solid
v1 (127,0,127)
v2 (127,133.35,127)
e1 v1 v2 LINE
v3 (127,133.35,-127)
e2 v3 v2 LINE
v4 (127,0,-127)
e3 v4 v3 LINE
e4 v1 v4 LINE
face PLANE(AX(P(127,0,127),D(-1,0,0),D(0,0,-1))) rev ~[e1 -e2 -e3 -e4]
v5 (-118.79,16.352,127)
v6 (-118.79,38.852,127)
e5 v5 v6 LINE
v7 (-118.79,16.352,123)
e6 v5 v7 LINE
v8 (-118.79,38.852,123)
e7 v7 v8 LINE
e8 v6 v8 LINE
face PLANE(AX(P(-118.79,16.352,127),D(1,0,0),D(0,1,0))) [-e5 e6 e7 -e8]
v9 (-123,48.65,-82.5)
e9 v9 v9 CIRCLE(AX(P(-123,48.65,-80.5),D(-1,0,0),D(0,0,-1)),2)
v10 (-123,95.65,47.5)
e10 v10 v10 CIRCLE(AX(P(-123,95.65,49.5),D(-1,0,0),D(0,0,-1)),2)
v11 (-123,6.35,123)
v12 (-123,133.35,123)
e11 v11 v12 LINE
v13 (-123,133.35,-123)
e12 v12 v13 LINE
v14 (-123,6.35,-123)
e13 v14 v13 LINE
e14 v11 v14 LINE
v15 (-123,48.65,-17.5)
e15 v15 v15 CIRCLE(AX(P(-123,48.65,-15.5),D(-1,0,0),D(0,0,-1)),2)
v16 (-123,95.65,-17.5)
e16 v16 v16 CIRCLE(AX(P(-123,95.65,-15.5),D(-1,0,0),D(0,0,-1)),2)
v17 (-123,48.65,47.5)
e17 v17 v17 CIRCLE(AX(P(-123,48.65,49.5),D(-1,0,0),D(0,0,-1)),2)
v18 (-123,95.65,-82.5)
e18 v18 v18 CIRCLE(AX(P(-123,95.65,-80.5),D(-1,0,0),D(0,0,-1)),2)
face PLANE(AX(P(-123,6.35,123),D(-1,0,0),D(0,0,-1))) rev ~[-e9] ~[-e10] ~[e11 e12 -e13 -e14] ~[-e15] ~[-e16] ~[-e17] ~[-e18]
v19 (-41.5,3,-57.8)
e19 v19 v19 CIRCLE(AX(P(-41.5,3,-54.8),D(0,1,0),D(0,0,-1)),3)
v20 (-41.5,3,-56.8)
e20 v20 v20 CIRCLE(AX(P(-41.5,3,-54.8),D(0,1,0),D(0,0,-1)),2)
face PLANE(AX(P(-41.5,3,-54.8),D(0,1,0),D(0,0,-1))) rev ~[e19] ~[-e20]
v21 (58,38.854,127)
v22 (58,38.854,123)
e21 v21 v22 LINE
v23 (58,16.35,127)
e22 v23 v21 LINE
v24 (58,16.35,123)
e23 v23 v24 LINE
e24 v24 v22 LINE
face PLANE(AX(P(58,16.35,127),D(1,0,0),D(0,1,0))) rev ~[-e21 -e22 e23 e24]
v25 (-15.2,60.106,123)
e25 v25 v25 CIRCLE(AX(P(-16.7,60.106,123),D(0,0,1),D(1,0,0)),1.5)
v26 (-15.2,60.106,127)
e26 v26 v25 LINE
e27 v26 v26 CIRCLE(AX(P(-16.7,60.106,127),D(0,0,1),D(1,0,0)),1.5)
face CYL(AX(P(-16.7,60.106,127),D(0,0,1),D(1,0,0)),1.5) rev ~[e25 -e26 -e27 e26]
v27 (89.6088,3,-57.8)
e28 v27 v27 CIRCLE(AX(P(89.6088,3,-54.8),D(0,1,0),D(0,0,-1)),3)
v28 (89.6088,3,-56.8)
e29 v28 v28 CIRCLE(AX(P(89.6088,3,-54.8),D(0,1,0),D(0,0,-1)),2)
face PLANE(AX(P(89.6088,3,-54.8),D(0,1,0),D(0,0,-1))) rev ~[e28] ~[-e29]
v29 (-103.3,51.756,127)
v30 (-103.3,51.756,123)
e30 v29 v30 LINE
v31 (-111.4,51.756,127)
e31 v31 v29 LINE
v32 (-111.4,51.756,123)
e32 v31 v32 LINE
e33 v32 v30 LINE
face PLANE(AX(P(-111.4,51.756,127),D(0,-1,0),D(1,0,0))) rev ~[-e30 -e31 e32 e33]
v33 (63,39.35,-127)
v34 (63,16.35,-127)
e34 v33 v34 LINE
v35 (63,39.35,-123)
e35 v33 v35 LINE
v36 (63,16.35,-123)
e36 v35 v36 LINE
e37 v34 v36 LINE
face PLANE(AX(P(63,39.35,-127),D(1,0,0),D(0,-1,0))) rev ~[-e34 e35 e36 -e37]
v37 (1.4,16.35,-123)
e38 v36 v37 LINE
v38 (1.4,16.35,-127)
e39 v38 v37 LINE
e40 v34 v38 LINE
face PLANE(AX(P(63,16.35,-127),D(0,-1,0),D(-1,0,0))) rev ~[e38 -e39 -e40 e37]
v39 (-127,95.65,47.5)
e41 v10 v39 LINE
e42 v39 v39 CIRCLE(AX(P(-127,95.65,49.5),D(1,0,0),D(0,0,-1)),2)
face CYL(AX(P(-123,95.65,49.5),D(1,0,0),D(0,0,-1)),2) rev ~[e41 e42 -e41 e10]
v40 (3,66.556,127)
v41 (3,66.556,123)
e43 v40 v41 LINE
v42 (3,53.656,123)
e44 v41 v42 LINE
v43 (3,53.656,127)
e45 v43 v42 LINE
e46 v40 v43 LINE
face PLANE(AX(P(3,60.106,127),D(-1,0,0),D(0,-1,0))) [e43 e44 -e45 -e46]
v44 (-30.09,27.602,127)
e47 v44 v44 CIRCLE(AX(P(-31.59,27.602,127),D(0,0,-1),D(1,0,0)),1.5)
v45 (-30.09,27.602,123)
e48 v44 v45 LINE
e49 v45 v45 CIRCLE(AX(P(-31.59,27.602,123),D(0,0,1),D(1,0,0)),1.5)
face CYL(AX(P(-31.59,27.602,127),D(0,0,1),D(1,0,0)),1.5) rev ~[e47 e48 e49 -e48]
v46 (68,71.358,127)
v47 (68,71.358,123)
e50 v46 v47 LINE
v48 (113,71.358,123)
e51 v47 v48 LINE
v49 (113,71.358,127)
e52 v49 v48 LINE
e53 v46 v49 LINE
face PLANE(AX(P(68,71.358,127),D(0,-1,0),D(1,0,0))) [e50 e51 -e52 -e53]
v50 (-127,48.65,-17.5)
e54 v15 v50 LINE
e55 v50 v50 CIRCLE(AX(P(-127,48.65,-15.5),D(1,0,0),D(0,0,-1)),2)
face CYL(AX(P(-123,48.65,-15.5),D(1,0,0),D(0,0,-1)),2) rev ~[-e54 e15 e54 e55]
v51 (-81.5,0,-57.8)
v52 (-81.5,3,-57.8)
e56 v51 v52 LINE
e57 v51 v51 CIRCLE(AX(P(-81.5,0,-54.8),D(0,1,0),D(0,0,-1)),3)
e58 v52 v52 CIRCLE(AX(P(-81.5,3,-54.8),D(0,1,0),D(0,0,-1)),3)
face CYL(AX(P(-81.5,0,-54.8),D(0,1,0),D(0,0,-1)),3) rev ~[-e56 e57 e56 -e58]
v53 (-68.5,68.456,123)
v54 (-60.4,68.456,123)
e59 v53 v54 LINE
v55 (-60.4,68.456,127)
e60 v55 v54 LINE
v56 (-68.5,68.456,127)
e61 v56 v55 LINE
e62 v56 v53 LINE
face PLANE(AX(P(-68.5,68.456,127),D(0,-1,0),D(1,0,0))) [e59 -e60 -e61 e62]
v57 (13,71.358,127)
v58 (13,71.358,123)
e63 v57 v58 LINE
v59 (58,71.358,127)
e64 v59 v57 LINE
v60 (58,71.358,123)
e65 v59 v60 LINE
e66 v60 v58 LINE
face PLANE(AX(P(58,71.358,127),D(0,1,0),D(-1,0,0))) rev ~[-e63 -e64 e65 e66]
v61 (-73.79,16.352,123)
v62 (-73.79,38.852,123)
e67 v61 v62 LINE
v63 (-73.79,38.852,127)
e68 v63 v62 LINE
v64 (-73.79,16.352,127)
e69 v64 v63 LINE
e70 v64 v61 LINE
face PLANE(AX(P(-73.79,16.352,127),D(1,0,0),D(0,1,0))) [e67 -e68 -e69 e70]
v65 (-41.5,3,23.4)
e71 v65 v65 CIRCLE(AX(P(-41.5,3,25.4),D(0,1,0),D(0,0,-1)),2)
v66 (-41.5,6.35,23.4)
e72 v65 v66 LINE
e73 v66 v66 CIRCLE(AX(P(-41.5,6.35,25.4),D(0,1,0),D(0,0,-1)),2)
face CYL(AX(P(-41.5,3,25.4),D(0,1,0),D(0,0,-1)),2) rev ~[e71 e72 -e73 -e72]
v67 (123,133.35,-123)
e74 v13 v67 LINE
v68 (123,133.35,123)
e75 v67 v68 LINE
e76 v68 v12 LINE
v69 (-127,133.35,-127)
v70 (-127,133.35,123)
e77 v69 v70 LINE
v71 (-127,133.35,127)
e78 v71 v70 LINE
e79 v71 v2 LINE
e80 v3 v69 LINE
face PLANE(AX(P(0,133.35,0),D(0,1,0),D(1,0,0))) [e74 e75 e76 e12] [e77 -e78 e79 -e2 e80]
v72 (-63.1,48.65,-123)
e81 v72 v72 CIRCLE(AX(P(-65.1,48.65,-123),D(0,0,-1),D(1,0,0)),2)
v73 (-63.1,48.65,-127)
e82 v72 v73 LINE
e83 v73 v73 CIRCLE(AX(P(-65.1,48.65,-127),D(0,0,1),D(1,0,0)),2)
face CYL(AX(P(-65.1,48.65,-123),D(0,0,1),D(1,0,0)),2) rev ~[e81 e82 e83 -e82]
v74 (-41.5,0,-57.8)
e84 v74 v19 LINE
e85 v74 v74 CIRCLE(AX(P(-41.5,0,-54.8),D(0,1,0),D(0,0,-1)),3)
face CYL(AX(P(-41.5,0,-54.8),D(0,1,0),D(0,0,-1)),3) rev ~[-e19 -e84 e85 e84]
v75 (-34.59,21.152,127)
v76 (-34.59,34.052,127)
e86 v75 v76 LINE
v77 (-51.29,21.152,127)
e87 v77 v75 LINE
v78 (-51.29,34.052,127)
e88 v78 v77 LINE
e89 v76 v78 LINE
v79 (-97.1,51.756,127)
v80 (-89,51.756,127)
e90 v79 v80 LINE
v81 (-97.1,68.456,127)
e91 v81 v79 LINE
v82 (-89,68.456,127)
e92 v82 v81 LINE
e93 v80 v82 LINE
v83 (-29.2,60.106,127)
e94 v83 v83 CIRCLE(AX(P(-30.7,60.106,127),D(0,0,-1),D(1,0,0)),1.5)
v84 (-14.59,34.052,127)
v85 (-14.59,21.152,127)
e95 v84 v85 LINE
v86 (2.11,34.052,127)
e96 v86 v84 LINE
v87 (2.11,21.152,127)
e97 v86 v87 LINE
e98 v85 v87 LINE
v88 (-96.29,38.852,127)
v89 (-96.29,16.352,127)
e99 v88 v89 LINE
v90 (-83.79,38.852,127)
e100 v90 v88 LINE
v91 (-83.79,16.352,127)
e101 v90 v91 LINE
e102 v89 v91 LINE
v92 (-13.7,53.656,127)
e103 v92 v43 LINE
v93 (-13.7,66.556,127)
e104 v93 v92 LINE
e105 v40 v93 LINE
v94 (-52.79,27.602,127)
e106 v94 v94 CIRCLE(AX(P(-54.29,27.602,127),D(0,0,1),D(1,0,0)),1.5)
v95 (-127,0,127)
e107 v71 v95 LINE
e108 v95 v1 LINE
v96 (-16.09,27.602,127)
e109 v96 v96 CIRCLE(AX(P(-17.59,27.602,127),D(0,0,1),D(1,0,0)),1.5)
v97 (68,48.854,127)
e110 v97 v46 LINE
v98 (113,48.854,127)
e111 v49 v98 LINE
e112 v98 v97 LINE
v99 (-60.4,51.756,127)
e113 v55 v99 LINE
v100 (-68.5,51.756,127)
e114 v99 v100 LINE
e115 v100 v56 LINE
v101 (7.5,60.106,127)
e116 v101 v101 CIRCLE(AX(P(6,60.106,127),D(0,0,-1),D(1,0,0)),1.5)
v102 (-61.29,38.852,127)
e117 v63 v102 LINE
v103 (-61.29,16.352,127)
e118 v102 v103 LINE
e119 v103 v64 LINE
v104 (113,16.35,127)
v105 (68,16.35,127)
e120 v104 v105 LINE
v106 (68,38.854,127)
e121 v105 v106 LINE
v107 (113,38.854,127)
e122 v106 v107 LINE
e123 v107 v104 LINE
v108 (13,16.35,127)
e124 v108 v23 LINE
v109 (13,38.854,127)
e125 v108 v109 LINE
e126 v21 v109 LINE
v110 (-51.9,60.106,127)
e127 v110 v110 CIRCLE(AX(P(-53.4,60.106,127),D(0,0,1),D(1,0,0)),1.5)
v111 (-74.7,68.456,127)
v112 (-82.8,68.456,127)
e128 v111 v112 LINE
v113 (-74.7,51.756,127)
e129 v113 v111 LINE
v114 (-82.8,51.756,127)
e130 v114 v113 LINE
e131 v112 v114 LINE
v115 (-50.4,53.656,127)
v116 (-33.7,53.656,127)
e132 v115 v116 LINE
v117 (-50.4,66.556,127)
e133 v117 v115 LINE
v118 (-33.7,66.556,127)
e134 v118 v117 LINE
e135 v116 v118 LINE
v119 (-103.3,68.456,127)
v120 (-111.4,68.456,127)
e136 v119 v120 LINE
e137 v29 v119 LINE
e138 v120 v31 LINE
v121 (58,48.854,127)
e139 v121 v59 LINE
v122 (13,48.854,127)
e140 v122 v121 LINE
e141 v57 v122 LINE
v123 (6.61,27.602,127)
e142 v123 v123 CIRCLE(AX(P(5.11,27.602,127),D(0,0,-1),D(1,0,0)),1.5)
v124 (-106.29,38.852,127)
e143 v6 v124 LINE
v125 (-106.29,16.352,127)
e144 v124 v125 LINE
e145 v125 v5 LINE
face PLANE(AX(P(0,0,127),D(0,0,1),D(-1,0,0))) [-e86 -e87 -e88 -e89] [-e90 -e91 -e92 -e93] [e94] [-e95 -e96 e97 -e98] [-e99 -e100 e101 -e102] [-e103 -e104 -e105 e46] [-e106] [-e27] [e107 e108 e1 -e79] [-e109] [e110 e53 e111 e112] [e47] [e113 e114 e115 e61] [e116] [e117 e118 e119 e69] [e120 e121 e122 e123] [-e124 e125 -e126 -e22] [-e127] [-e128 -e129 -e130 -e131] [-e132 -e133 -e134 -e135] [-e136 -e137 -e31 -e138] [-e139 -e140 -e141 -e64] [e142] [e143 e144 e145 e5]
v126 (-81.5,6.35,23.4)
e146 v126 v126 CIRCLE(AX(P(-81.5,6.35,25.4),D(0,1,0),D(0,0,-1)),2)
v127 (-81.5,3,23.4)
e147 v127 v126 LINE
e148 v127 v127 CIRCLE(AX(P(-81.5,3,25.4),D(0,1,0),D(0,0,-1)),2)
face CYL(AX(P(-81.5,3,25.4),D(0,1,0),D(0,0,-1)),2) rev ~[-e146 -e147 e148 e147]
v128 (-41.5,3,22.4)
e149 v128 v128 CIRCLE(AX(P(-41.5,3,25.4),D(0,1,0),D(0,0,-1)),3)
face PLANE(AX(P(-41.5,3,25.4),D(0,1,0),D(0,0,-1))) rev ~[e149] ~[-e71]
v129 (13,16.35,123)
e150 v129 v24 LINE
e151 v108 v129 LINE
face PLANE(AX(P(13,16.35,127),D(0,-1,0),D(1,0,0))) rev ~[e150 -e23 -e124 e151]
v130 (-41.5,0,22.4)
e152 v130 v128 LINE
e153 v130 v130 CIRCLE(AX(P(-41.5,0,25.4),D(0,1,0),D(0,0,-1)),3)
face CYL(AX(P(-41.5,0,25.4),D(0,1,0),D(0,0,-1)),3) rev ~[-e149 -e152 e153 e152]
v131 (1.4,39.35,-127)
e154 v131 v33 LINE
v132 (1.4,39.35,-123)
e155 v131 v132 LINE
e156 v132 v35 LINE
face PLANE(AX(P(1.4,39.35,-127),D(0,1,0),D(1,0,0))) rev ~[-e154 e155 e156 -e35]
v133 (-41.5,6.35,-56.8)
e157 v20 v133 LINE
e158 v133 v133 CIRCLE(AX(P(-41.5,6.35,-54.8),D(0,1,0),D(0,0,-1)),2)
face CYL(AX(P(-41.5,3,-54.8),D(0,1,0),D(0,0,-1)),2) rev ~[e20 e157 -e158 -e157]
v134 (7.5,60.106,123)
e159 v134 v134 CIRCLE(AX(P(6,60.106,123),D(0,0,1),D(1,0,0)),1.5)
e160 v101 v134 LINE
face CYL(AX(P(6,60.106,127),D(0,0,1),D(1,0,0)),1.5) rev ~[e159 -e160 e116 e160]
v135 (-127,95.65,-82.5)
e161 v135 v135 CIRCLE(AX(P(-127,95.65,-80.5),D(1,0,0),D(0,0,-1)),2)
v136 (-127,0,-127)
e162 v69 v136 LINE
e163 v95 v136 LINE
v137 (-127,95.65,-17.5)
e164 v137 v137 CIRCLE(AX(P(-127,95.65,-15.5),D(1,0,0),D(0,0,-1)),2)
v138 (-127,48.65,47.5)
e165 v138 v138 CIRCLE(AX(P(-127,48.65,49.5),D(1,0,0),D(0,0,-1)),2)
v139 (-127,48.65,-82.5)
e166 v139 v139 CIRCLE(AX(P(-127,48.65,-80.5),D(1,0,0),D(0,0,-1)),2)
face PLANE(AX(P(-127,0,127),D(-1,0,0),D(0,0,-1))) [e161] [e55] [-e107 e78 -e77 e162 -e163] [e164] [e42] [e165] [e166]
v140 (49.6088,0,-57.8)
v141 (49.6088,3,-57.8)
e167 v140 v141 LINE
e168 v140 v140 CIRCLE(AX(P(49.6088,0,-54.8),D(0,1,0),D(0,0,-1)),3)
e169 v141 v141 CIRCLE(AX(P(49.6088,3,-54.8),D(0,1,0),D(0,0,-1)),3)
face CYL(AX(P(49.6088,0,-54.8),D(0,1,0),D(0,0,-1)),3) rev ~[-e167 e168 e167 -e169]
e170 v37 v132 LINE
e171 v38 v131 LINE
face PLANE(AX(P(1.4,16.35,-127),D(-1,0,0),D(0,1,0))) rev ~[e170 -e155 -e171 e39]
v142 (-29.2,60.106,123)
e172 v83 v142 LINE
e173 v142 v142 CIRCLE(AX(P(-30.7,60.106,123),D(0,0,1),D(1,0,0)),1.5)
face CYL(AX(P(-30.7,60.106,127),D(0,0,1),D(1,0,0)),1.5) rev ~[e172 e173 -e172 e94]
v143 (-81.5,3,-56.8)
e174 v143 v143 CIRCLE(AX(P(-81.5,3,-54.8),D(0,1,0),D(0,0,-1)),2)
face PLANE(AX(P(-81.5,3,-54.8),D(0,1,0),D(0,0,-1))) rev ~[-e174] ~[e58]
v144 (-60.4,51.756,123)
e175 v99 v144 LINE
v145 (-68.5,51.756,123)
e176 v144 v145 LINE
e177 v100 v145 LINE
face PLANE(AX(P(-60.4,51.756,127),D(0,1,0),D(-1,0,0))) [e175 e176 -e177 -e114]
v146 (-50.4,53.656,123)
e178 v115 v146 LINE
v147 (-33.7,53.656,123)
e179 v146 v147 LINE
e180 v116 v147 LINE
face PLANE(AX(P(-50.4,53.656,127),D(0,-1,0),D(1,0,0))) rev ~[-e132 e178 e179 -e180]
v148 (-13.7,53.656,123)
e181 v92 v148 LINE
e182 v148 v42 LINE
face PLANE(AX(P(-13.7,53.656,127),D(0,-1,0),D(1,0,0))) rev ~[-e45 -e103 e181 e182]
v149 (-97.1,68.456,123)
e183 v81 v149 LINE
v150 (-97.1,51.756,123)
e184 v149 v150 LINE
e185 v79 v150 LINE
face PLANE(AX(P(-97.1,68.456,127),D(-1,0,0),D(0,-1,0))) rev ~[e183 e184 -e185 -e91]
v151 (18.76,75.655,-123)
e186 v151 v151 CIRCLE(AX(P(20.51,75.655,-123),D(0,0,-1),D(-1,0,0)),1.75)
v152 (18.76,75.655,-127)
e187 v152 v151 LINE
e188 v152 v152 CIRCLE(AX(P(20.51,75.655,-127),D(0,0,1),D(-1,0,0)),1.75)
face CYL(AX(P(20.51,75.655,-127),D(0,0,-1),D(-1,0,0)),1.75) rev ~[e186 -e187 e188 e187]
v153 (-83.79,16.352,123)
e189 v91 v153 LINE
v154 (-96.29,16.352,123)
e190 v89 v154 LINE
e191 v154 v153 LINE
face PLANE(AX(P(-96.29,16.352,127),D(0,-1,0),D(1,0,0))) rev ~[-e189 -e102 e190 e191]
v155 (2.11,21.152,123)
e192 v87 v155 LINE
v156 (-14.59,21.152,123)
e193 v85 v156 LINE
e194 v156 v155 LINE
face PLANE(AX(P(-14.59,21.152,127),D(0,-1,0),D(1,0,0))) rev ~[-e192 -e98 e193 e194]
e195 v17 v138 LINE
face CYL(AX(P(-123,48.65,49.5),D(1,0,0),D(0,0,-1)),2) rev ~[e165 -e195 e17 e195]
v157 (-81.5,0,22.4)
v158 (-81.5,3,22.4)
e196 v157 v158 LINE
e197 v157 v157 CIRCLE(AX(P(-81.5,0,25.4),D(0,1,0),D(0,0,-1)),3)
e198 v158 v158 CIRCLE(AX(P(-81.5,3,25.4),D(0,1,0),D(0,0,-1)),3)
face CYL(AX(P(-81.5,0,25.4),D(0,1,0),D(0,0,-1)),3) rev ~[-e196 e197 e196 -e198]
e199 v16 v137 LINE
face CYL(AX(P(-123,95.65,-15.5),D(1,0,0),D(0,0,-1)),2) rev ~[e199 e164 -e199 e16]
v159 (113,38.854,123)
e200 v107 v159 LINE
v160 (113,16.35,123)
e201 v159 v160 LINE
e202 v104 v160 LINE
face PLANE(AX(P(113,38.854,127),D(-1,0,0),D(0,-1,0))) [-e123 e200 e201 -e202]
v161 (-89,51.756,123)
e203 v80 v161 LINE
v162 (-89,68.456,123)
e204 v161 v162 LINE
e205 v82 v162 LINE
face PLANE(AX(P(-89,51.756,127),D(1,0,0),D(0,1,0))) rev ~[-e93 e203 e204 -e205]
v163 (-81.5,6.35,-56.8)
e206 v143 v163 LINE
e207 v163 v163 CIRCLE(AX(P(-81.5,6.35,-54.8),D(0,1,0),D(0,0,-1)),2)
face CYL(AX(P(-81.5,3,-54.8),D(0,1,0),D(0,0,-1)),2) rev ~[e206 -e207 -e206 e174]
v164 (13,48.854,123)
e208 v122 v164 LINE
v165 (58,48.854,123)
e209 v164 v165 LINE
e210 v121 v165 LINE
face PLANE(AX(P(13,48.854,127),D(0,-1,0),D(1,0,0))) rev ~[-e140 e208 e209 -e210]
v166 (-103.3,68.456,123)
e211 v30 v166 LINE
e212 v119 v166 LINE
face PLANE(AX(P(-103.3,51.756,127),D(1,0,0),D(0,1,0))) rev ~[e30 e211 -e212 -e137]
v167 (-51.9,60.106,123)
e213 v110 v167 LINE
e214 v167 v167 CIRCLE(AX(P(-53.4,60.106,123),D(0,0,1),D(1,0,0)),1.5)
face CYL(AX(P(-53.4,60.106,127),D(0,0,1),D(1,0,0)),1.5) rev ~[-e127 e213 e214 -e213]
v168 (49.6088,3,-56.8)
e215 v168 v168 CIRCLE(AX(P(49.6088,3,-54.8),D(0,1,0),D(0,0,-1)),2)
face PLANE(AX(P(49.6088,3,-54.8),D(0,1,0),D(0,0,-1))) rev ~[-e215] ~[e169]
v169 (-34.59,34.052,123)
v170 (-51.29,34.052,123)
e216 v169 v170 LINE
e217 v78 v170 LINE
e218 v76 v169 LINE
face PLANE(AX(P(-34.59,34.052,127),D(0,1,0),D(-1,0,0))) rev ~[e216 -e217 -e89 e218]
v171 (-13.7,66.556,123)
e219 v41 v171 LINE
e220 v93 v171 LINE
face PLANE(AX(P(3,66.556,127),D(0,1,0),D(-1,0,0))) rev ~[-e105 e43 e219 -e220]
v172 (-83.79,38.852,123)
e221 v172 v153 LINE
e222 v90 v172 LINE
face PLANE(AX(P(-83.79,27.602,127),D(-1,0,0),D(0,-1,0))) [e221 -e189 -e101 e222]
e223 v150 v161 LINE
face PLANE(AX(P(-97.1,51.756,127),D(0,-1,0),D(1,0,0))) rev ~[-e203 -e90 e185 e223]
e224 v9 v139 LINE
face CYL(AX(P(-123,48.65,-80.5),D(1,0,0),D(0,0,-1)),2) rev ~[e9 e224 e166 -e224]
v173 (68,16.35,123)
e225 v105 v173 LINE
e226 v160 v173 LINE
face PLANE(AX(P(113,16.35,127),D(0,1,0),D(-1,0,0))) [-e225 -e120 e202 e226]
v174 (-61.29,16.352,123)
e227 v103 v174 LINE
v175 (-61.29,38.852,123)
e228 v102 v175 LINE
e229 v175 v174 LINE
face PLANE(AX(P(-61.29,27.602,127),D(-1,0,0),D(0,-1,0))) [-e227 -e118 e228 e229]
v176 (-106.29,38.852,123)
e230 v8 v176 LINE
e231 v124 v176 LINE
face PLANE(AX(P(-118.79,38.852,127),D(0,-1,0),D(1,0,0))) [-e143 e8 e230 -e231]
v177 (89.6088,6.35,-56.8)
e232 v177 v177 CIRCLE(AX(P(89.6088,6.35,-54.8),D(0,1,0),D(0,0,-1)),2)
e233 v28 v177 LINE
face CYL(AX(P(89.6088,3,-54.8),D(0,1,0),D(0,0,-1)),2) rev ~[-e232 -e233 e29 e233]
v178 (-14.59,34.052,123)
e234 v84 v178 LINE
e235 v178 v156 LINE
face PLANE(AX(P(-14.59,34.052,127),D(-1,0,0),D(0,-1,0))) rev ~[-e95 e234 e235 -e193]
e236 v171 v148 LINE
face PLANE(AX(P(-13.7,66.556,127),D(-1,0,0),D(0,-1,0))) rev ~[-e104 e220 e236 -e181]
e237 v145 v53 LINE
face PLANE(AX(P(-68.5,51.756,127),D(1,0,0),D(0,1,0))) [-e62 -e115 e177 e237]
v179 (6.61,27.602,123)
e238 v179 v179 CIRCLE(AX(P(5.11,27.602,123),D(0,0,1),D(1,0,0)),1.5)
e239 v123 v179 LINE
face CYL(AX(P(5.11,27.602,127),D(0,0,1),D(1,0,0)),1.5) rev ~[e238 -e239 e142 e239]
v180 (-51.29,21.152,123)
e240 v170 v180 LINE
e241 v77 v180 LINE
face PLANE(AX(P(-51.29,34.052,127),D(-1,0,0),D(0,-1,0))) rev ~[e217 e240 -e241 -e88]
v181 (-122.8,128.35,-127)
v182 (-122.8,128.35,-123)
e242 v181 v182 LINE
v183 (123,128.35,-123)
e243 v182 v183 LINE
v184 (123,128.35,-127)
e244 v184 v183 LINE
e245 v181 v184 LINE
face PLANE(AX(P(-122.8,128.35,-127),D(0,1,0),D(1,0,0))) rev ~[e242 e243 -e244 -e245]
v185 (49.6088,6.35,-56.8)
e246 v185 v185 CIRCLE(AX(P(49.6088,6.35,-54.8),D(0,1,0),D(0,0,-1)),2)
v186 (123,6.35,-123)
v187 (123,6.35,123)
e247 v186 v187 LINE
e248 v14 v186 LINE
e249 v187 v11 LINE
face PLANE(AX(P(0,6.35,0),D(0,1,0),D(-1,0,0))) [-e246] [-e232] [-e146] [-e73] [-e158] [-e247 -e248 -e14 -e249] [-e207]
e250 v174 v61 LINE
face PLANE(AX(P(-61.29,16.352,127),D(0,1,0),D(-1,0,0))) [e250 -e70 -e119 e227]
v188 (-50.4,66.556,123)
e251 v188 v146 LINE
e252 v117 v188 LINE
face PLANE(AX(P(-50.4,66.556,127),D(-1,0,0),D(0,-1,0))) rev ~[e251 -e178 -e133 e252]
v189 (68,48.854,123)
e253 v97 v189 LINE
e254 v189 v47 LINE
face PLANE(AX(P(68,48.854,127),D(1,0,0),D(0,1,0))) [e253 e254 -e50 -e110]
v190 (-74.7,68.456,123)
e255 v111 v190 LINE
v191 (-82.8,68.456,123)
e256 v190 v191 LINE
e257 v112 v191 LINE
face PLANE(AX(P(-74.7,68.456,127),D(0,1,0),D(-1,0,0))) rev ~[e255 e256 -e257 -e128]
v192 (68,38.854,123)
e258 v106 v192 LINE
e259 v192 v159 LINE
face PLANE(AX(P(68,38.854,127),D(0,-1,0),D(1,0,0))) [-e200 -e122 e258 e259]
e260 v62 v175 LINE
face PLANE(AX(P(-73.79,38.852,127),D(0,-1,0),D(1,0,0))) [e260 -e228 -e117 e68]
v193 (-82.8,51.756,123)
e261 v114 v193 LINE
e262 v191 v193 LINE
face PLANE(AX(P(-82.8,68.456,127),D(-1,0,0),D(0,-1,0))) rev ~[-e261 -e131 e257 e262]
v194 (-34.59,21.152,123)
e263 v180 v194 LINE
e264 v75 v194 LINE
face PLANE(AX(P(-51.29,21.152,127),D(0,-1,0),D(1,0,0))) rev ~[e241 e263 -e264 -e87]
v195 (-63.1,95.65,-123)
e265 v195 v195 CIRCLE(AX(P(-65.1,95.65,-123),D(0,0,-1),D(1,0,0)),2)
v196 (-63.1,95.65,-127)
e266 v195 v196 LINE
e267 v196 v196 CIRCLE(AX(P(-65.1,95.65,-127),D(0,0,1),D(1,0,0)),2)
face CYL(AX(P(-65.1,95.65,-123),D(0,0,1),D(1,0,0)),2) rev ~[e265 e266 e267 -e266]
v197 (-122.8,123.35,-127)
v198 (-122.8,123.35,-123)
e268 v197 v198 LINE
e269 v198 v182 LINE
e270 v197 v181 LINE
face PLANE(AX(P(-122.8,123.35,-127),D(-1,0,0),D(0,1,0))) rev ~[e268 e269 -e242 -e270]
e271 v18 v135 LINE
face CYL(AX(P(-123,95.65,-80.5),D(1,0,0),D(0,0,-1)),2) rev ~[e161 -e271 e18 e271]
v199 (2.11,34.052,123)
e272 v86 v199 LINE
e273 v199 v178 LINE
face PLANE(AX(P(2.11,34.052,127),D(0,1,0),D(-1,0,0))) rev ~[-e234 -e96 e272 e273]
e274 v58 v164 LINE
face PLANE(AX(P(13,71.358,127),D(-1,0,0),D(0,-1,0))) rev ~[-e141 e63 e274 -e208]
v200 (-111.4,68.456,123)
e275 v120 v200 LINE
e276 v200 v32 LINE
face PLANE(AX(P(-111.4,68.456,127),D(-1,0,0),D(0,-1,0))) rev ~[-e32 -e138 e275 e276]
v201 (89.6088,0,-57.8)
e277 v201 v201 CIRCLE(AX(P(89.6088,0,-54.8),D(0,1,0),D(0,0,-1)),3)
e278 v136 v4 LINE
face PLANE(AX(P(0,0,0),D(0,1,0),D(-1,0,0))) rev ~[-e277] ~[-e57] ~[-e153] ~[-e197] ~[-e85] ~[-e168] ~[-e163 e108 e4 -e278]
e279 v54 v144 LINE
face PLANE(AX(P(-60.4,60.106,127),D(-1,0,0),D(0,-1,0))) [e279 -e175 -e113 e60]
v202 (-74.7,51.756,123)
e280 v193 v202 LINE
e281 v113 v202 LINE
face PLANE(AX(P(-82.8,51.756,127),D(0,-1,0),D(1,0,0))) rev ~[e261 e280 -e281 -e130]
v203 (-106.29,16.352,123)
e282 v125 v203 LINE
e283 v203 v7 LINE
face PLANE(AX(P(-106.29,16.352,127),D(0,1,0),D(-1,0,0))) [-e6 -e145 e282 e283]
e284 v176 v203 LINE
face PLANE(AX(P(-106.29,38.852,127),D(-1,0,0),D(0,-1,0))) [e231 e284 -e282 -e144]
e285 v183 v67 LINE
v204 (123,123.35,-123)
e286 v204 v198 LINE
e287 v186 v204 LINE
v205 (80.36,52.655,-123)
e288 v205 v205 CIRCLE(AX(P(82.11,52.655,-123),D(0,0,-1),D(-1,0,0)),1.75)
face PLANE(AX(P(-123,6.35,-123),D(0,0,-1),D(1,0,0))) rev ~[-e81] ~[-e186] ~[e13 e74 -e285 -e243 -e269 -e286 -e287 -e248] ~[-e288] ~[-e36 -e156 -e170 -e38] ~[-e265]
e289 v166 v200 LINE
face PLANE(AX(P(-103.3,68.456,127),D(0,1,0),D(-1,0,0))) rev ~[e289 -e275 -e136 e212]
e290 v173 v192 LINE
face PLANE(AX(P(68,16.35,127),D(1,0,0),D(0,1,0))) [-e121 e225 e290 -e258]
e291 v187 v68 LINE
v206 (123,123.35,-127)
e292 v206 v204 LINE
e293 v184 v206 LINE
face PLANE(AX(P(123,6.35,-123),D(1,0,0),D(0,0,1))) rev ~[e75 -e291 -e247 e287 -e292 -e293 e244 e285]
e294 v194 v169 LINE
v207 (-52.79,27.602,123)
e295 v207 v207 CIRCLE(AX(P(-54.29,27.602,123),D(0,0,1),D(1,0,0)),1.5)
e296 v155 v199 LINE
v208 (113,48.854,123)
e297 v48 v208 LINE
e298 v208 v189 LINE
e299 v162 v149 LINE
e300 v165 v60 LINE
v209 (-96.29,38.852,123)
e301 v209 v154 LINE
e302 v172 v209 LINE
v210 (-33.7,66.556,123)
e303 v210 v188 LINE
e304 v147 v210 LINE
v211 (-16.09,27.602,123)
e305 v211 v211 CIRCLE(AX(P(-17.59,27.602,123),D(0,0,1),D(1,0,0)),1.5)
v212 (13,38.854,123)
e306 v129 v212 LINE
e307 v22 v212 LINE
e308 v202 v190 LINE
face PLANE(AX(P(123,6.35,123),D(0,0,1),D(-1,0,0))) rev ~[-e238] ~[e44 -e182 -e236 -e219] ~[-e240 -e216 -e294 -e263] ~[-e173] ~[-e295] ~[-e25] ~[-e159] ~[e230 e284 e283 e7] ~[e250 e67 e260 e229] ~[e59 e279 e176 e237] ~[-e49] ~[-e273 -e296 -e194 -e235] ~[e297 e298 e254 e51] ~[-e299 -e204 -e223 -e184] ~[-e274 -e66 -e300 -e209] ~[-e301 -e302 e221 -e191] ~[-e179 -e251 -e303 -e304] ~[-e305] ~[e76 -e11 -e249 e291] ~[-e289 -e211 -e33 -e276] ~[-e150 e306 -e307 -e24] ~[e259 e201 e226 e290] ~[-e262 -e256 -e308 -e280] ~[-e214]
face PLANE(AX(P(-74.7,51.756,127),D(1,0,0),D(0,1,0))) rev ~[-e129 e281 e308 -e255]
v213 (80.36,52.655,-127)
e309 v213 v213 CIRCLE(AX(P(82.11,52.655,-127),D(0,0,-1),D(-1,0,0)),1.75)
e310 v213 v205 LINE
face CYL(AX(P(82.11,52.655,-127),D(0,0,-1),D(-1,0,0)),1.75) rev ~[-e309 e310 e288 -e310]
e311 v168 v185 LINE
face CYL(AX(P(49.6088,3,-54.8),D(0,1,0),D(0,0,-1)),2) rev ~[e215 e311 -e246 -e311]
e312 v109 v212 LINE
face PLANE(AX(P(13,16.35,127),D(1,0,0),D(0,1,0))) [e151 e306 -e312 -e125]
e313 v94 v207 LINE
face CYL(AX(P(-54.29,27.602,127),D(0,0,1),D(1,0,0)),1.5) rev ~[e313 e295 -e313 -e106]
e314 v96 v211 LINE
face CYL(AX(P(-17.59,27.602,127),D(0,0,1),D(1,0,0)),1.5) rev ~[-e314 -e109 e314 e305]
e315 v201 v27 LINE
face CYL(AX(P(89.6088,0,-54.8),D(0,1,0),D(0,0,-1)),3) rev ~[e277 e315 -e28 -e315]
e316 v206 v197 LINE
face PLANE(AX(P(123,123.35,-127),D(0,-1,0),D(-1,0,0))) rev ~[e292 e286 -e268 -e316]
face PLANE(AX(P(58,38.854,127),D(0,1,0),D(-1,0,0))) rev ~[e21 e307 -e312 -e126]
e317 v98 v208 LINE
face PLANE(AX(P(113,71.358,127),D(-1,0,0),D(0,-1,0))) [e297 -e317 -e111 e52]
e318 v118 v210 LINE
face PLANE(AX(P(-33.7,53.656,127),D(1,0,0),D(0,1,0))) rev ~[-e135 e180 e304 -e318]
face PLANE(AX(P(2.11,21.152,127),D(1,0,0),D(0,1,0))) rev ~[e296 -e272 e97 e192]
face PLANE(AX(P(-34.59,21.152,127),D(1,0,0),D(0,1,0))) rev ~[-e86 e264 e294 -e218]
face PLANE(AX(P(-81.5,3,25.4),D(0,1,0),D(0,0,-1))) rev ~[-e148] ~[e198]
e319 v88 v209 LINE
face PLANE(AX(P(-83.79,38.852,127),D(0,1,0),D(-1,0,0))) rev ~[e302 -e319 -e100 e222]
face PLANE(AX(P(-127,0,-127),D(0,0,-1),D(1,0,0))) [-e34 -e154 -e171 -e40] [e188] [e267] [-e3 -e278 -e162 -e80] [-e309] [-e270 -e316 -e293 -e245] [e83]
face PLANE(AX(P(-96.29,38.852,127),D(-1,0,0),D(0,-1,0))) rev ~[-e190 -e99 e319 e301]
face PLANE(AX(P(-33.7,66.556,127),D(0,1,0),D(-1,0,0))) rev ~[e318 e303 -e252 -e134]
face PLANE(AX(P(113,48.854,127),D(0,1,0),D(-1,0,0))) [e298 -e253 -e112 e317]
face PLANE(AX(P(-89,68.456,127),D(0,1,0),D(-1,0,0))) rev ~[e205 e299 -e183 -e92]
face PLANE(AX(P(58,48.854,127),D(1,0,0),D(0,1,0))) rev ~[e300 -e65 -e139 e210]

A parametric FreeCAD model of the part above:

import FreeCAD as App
import Part
import Sketcher

V = App.Vector


def add_polygon(sketch, points):
    """Adds a closed chain of lines whose ends are joined by coincident constraints."""
    first, n = sketch.GeometryCount, len(points)
    for a, b in zip(points, points[1:] + points[:1]):
        sketch.addGeometry(Part.LineSegment(App.Vector(*a, 0), App.Vector(*b, 0)), False)
    for i in range(n):
        sketch.addConstraint(Sketcher.Constraint("Coincident", first + i, 2, first + (i + 1) % n, 1))

doc = App.newDocument("Part")
params = doc.addObject("Spreadsheet::Sheet", "Params")
for row, (alias, value) in enumerate([
    ("sketch1_width", "254 mm"),
    ("pad1_length", "6.35 mm"),
    ("sketch2_width", "246 mm"),
    ("sketch2_height", "4 mm"),
    ("pad2_length", "127 mm"),
    ("sketch3_width", "16.7 mm"),
    ("sketch3_height", "12.9 mm"),
    ("pocket1_length", "101.6 mm"),
    ("sketch4_width", "45 mm"),
    ("pocket2_length", "19 mm"),
    ("sketch5_width", "8.1 mm"),
    ("sketch5_height", "16.7 mm"),
    ("pocket3_length", "19 mm"),
    ("sketch6_width", "12.5 mm"),
    ("sketch6_height", "22.5 mm"),
    ("pocket4_length", "10 mm"),
    ("sketch7_diameter", "3 mm"),
    ("pocket5_length", "10 mm"),
    ("sketch8_height", "23 mm"),
    ("sketch8_width", "61.6 mm"),
    ("pocket6_length", "5 mm"),
    ("sketch9_diameter", "3.5 mm"),
    ("pocket7_length", "127 mm"),
    ("sketch10_height", "5 mm"),
    ("sketch10_width", "245.8 mm"),
    ("pocket8_length", "5 mm"),
    ("sketch11_diameter", "4 mm"),
    ("pocket9_length", "5 mm"),
    ("sketch12_diameter", "4 mm"),
    ("pocket10_length", "5 mm"),
    ("sketch13_diameter", "4 mm"),
    ("hole_diameter", "4 mm"),
    ("hole_cbore_diameter", "6 mm"),
    ("hole_cbore_depth", "3 mm"),
], start=1):
    params.set(f"A{row}", alias)
    params.set(f"B{row}", "=" + value)
    params.setAlias(f"B{row}", alias)

body = doc.addObject("PartDesign::Body", "Body")

sketch1 = body.newObject("Sketcher::SketchObject", "Sketch")
sketch1.AttachmentSupport = (doc.getObject("XZ_Plane"), [""])
sketch1.MapMode = "FlatFace"
add_polygon(sketch1, [(-127, 127), (127, 127), (127, -127), (-127, -127)])
sketch1.addConstraint([
    Sketcher.Constraint("Horizontal", 0),
    Sketcher.Constraint("Vertical", 1),
    Sketcher.Constraint("Horizontal", 2),
    Sketcher.Constraint("Vertical", 3),
    Sketcher.Constraint("Symmetric", 0, 2, 2, 2, -1, 1),
    Sketcher.Constraint("Equal", 2, 1),
    Sketcher.Constraint("DistanceX", 0, 1, 0, 2, 254.0),
])
sketch1.setExpression("Constraints[10]", "Params.sketch1_width")
pad1 = body.newObject("PartDesign::Pad", "Pad")
pad1.Profile = sketch1
pad1.setExpression("Length", "Params.pad1_length")
pad1.Reversed = True

sketch2 = body.newObject("Sketcher::SketchObject", "Sketch001")
sketch2.AttachmentSupport = (doc.getObject("XZ_Plane"), [""])
sketch2.MapMode = "FlatFace"
sketch2.AttachmentOffset = App.Placement(V(0, 0, -6.35), App.Rotation())
add_polygon(sketch2, [(-127, 123), (-127, 127), (127, 127), (127, -127), (-127, -127)])
add_polygon(sketch2, [(123, 123), (-123, 123), (-123, -123), (123, -123)])
sketch2.addConstraint([
    Sketcher.Constraint("Vertical", 0),
    Sketcher.Constraint("Horizontal", 1),
    Sketcher.Constraint("Vertical", 2),
    Sketcher.Constraint("Horizontal", 3),
    Sketcher.Constraint("Vertical", 4),
    Sketcher.Constraint("Horizontal", 5),
    Sketcher.Constraint("Vertical", 6),
    Sketcher.Constraint("Horizontal", 7),
    Sketcher.Constraint("Vertical", 8),
    Sketcher.Constraint("Symmetric", 0, 2, 2, 2, -1, 1),
    Sketcher.Constraint("Symmetric", 5, 2, 7, 2, -1, 1),
    Sketcher.Constraint("Horizontal", 4, 2, 5, 2),
    Sketcher.Constraint("Equal", 3, 2),
    Sketcher.Constraint("Equal", 7, 6),
    Sketcher.Constraint("DistanceX", 5, 2, 5, 1, 246.0),
    Sketcher.Constraint("DistanceY", 0, 1, 0, 2, 4.0),
])
sketch2.setExpression("Constraints[23]", "Params.sketch2_width")
sketch2.setExpression("Constraints[24]", "Params.sketch2_height")
pad2 = body.newObject("PartDesign::Pad", "Pad001")
pad2.Profile = sketch2
pad2.setExpression("Length", "Params.pad2_length")
pad2.Reversed = True

sketch3 = body.newObject("Sketcher::SketchObject", "Sketch002")
sketch3.AttachmentSupport = (doc.getObject("XY_Plane"), [""])
sketch3.MapMode = "FlatFace"
sketch3.AttachmentOffset = App.Placement(V(0, 0, 127), App.Rotation())
add_polygon(sketch3, [(3, 54), (3, 67), (-14, 67), (-14, 54)])
add_polygon(sketch3, [(-34, 54), (-34, 67), (-50, 67), (-50, 54)])
add_polygon(sketch3, [(2, 21), (2, 34), (-15, 34), (-15, 21)])
add_polygon(sketch3, [(-35, 21), (-35, 34), (-51, 34), (-51, 21)])
sketch3.addConstraint([
    Sketcher.Constraint("Vertical", 0),
    Sketcher.Constraint("Horizontal", 1),
    Sketcher.Constraint("Vertical", 2),
    Sketcher.Constraint("Horizontal", 3),
    Sketcher.Constraint("Vertical", 4),
    Sketcher.Constraint("Horizontal", 5),
    Sketcher.Constraint("Vertical", 6),
    Sketcher.Constraint("Horizontal", 7),
    Sketcher.Constraint("Vertical", 8),
    Sketcher.Constraint("Horizontal", 9),
    Sketcher.Constraint("Vertical", 10),
    Sketcher.Constraint("Horizontal", 11),
    Sketcher.Constraint("Vertical", 12),
    Sketcher.Constraint("Horizontal", 13),
    Sketcher.Constraint("Vertical", 14),
    Sketcher.Constraint("Horizontal", 15),
    Sketcher.Constraint("Horizontal", 1, 2, 4, 2),
    Sketcher.Constraint("Horizontal", 3, 2, 6, 2),
    Sketcher.Constraint("Horizontal", 9, 2, 12, 2),
    Sketcher.Constraint("Horizontal", 11, 2, 14, 2),
    Sketcher.Constraint("Equal", 3, 5),
    Sketcher.Constraint("Equal", 7, 9),
    Sketcher.Constraint("Equal", 11, 13),
    Sketcher.Constraint("Equal", 6, 8),
    Sketcher.Constraint("DistanceX", 1, 2, 1, 1, 16.7),
    Sketcher.Constraint("DistanceY", 0, 1, 0, 2, 12.9),
    Sketcher.Constraint("DistanceX", 4, 2, 1, 2, 20.0),
    Sketcher.Constraint("DistanceX", 12, 2, 9, 2, 20.0),
    Sketcher.Constraint("DistanceX", -1, 1, 0, 2, 3.0),
    Sketcher.Constraint("DistanceX", -1, 1, 8, 2, 2.11),
    Sketcher.Constraint("DistanceY", -1, 1, 0, 2, 66.556),
    Sketcher.Constraint("DistanceY", -1, 1, 8, 2, 34.052),
])
sketch3.setExpression("Constraints[40]", "Params.sketch3_width")
sketch3.setExpression("Constraints[41]", "Params.sketch3_height")
pocket1 = body.newObject("PartDesign::Pocket", "Pocket")
pocket1.Profile = sketch3
pocket1.setExpression("Length", "Params.pocket1_length")

sketch4 = body.newObject("Sketcher::SketchObject", "Sketch003")
sketch4.AttachmentSupport = (doc.getObject("XY_Plane"), [""])
sketch4.MapMode = "FlatFace"
sketch4.AttachmentOffset = App.Placement(V(0, 0, 127), App.Rotation())
add_polygon(sketch4, [(58, 16), (58, 39), (13, 39), (13, 16)])
add_polygon(sketch4, [(13, 49), (58, 49), (58, 71), (13, 71)])
add_polygon(sketch4, [(68, 49), (113, 49), (113, 71), (68, 71)])
add_polygon(sketch4, [(68, 16), (113, 16), (113, 39), (68, 39)])
sketch4.addConstraint([
    Sketcher.Constraint("Vertical", 0),
    Sketcher.Constraint("Horizontal", 1),
    Sketcher.Constraint("Vertical", 2),
    Sketcher.Constraint("Horizontal", 3),
    Sketcher.Constraint("Horizontal", 4),
    Sketcher.Constraint("Vertical", 5),
    Sketcher.Constraint("Horizontal", 6),
    Sketcher.Constraint("Vertical", 7),
    Sketcher.Constraint("Horizontal", 8),
    Sketcher.Constraint("Vertical", 9),
    Sketcher.Constraint("Horizontal", 10),
    Sketcher.Constraint("Vertical", 11),
    Sketcher.Constraint("Horizontal", 12),
    Sketcher.Constraint("Vertical", 13),
    Sketcher.Constraint("Horizontal", 14),
    Sketcher.Constraint("Vertical", 15),
    Sketcher.Constraint("Horizontal", 7, 2, 8, 2),
    Sketcher.Constraint("Horizontal", 6, 2, 9, 2),
    Sketcher.Constraint("Horizontal", 3, 2, 12, 2),
    Sketcher.Constraint("Horizontal", 1, 2, 13, 2),
    Sketcher.Constraint("Vertical", 3, 2, 4, 2),
    Sketcher.Constraint("Vertical", 2, 2, 6, 2),
    Sketcher.Constraint("Vertical", 9, 2, 12, 2),
    Sketcher.Constraint("Vertical", 11, 2, 14, 2),
    Sketcher.Constraint("Equal", 6, 8),
    Sketcher.Constraint("Equal", 2, 5),
    Sketcher.Constraint("DistanceX", 1, 2, 1, 1, 45.0),
    Sketcher.Constraint("DistanceY", 0, 2, 4, 2, 10.0),
    Sketcher.Constraint("DistanceX", 5, 2, 10, 2, 10.0),
    Sketcher.Constraint("DistanceY", 0, 1, 0, 2, 22.504),
    Sketcher.Constraint("DistanceX", -1, 1, 0, 2, 58.0),
    Sketcher.Constraint("DistanceY", -1, 1, 2, 2, 16.35),
])
sketch4.setExpression("Constraints[42]", "Params.sketch4_width")
pocket2 = body.newObject("PartDesign::Pocket", "Pocket001")
pocket2.Profile = sketch4
pocket2.setExpression("Length", "Params.pocket2_length")

sketch5 = body.newObject("Sketcher::SketchObject", "Sketch004")
sketch5.AttachmentSupport = (doc.getObject("XY_Plane"), [""])
sketch5.MapMode = "FlatFace"
sketch5.AttachmentOffset = App.Placement(V(0, 0, 127), App.Rotation())
add_polygon(sketch5, [(-103, 52), (-103, 68), (-111, 68), (-111, 52)])
add_polygon(sketch5, [(-89, 52), (-89, 68), (-97, 68), (-97, 52)])
add_polygon(sketch5, [(-75, 52), (-75, 68), (-83, 68), (-83, 52)])
add_polygon(sketch5, [(-60, 52), (-60, 68), (-68, 68), (-68, 52)])
sketch5.addConstraint([
    Sketcher.Constraint("Vertical", 0),
    Sketcher.Constraint("Horizontal", 1),
    Sketcher.Constraint("Vertical", 2),
    Sketcher.Constraint("Horizontal", 3),
    Sketcher.Constraint("Vertical", 4),
    Sketcher.Constraint("Horizontal", 5),
    Sketcher.Constraint("Vertical", 6),
    Sketcher.Constraint("Horizontal", 7),
    Sketcher.Constraint("Vertical", 8),
    Sketcher.Constraint("Horizontal", 9),
    Sketcher.Constraint("Vertical", 10),
    Sketcher.Constraint("Horizontal", 11),
    Sketcher.Constraint("Vertical", 12),
    Sketcher.Constraint("Horizontal", 13),
    Sketcher.Constraint("Vertical", 14),
    Sketcher.Constraint("Horizontal", 15),
    Sketcher.Constraint("Horizontal", 1, 2, 4, 2),
    Sketcher.Constraint("Horizontal", 3, 2, 6, 2),
    Sketcher.Constraint("Horizontal", 5, 2, 8, 2),
    Sketcher.Constraint("Horizontal", 7, 2, 10, 2),
    Sketcher.Constraint("Horizontal", 9, 2, 12, 2),
    Sketcher.Constraint("Horizontal", 11, 2, 14, 2),
    Sketcher.Constraint("Equal", 3, 5),
    Sketcher.Constraint("Equal", 7, 9),
    Sketcher.Constraint("Equal", 11, 13),
    Sketcher.Constraint("DistanceX", 1, 2, 1, 1, 8.1),
    Sketcher.Constraint("DistanceY", 0, 1, 0, 2, 16.7),
    Sketcher.Constraint("DistanceX", 0, 2, 5, 2, 6.2),
    Sketcher.Constraint("DistanceX", 4, 2, 9, 2, 6.2),
    Sketcher.Constraint("DistanceX", 8, 2, 13, 2, 6.2),
    Sketcher.Constraint("DistanceX", 4, 2, -1, 1, 89.0),
    Sketcher.Constraint("DistanceY", -1, 1, 0, 2, 68.456),
])
sketch5.setExpression("Constraints[41]", "Params.sketch5_width")
sketch5.setExpression("Constraints[42]", "Params.sketch5_height")
pocket3 = body.newObject("PartDesign::Pocket", "Pocket002")
pocket3.Profile = sketch5
pocket3.setExpression("Length", "Params.pocket3_length")

sketch6 = body.newObject("Sketcher::SketchObject", "Sketch005")
sketch6.AttachmentSupport = (doc.getObject("XY_Plane"), [""])
sketch6.MapMode = "FlatFace"
sketch6.AttachmentOffset = App.Placement(V(0, 0, 127), App.Rotation())
add_polygon(sketch6, [(-61, 16), (-61, 39), (-74, 39), (-74, 16)])
add_polygon(sketch6, [(-106, 16), (-106, 39), (-119, 39), (-119, 16)])
add_polygon(sketch6, [(-84, 16), (-84, 39), (-96, 39), (-96, 16)])
sketch6.addConstraint([
    Sketcher.Constraint("Vertical", 0),
    Sketcher.Constraint("Horizontal", 1),
    Sketcher.Constraint("Vertical", 2),
    Sketcher.Constraint("Horizontal", 3),
    Sketcher.Constraint("Vertical", 4),
    Sketcher.Constraint("Horizontal", 5),
    Sketcher.Constraint("Vertical", 6),
    Sketcher.Constraint("Horizontal", 7),
    Sketcher.Constraint("Vertical", 8),
    Sketcher.Constraint("Horizontal", 9),
    Sketcher.Constraint("Vertical", 10),
    Sketcher.Constraint("Horizontal", 11),
    Sketcher.Constraint("Horizontal", 1, 2, 4, 2),
    Sketcher.Constraint("Horizontal", 3, 2, 6, 2),
    Sketcher.Constraint("Horizontal", 5, 2, 8, 2),
    Sketcher.Constraint("Horizontal", 7, 2, 10, 2),
    Sketcher.Constraint("Equal", 3, 5),
    Sketcher.Constraint("Equal", 7, 9),
    Sketcher.Constraint("DistanceX", 1, 2, 1, 1, 12.5),
    Sketcher.Constraint("DistanceX", 8, 2, 1, 2, 10.0),
    Sketcher.Constraint("DistanceX", 4, 2, 9, 2, 10.0),
    Sketcher.Constraint("DistanceY", 0, 1, 0, 2, 22.5),
    Sketcher.Constraint("DistanceX", 0, 2, -1, 1, 61.29),
    Sketcher.Constraint("DistanceY", -1, 1, 0, 2, 38.852),
])
sketch6.setExpression("Constraints[30]", "Params.sketch6_width")
sketch6.setExpression("Constraints[33]", "Params.sketch6_height")
pocket4 = body.newObject("PartDesign::Pocket", "Pocket003")
pocket4.Profile = sketch6
pocket4.setExpression("Length", "Params.pocket4_length")

sketch7 = body.newObject("Sketcher::SketchObject", "Sketch006")
sketch7.AttachmentSupport = (doc.getObject("XY_Plane"), [""])
sketch7.MapMode = "FlatFace"
sketch7.AttachmentOffset = App.Placement(V(0, 0, 127), App.Rotation())
sketch7.addGeometry([
    Part.Circle(V(-30.7, 60.1, 0), V(0, 0, 1), 1.5),
    Part.Circle(V(-16.7, 60.1, 0), V(0, 0, 1), 1.5),
    Part.Circle(V(6, 60.1, 0), V(0, 0, 1), 1.5),
    Part.Circle(V(5.1, 27.6, 0), V(0, 0, 1), 1.5),
    Part.Circle(V(-31.6, 27.6, 0), V(0, 0, 1), 1.5),
    Part.Circle(V(-17.6, 27.6, 0), V(0, 0, 1), 1.5),
    Part.Circle(V(-54.3, 27.6, 0), V(0, 0, 1), 1.5),
    Part.Circle(V(-53.4, 60.1, 0), V(0, 0, 1), 1.5),
], False)
sketch7.addConstraint([
    Sketcher.Constraint("Equal", 0, 1),
    Sketcher.Constraint("Equal", 1, 2),
    Sketcher.Constraint("Equal", 2, 3),
    Sketcher.Constraint("Equal", 3, 4),
    Sketcher.Constraint("Equal", 4, 5),
    Sketcher.Constraint("Equal", 5, 6),
    Sketcher.Constraint("Equal", 6, 7),
    Sketcher.Constraint("Horizontal", 0, 3, 1, 3),
    Sketcher.Constraint("Horizontal", 1, 3, 2, 3),
    Sketcher.Constraint("Horizontal", 3, 3, 4, 3),
    Sketcher.Constraint("Horizontal", 4, 3, 5, 3),
    Sketcher.Constraint("Horizontal", 5, 3, 6, 3),
    Sketcher.Constraint("Horizontal", 2, 3, 7, 3),
    Sketcher.Constraint("Diameter", 0, 3.0),
    Sketcher.Constraint("DistanceX", -1, 1, 2, 3, 6.0),
    Sketcher.Constraint("DistanceX", 0, 3, 1, 3, 14.0),
    Sketcher.Constraint("DistanceX", 4, 3, 5, 3, 14.0),
    Sketcher.Constraint("DistanceX", 0, 3, -1, 1, 30.7),
    Sketcher.Constraint("DistanceX", 7, 3, -1, 1, 53.4),
    Sketcher.Constraint("DistanceX", 4, 3, 3, 3, 36.7),
    Sketcher.Constraint("DistanceX", 6, 3, 4, 3, 22.7),
    Sketcher.Constraint("DistanceX", -1, 1, 3, 3, 5.11),
    Sketcher.Constraint("DistanceY", -1, 1, 0, 3, 60.106),
    Sketcher.Constraint("DistanceY", -1, 1, 3, 3, 27.602),
])
sketch7.setExpression("Constraints[13]", "Params.sketch7_diameter")
pocket5 = body.newObject("PartDesign::Pocket", "Pocket004")
pocket5.Profile = sketch7
pocket5.setExpression("Length", "Params.pocket5_length")

sketch8 = body.newObject("Sketcher::SketchObject", "Sketch007")
sketch8.AttachmentSupport = (doc.getObject("XY_Plane"), [""])
sketch8.MapMode = "FlatFace"
sketch8.AttachmentOffset = App.Placement(V(0, 0, -127), App.Rotation())
add_polygon(sketch8, [(63, 39), (63, 16), (1, 16), (1, 39)])
sketch8.addConstraint([
    Sketcher.Constraint("Vertical", 0),
    Sketcher.Constraint("Horizontal", 1),
    Sketcher.Constraint("Vertical", 2),
    Sketcher.Constraint("Horizontal", 3),
    Sketcher.Constraint("DistanceY", 0, 2, 0, 1, 23.0),
    Sketcher.Constraint("DistanceX", 1, 2, 1, 1, 61.6),
    Sketcher.Constraint("DistanceX", -1, 1, 0, 2, 63.0),
    Sketcher.Constraint("DistanceY", -1, 1, 0, 2, 16.35),
])
sketch8.setExpression("Constraints[8]", "Params.sketch8_height")
sketch8.setExpression("Constraints[9]", "Params.sketch8_width")
pocket6 = body.newObject("PartDesign::Pocket", "Pocket005")
pocket6.Profile = sketch8
pocket6.setExpression("Length", "Params.pocket6_length")
pocket6.Reversed = True

sketch9 = body.newObject("Sketcher::SketchObject", "Sketch008")
sketch9.AttachmentSupport = (doc.getObject("XY_Plane"), [""])
sketch9.MapMode = "FlatFace"
sketch9.AttachmentOffset = App.Placement(V(0, 0, -127), App.Rotation())
sketch9.addGeometry([
    Part.Circle(V(20.5, 75.7, 0), V(0, 0, 1), 1.8),
    Part.Circle(V(82.1, 52.7, 0), V(0, 0, 1), 1.8),
], False)
sketch9.addConstraint([
    Sketcher.Constraint("Equal", 0, 1),
    Sketcher.Constraint("Diameter", 0, 3.5),
    Sketcher.Constraint("DistanceY", 1, 3, 0, 3, 23.0),
    Sketcher.Constraint("DistanceX", 0, 3, 1, 3, 61.6),
    Sketcher.Constraint("DistanceX", -1, 1, 0, 3, 20.51),
    Sketcher.Constraint("DistanceY", -1, 1, 0, 3, 75.655),
])
sketch9.setExpression("Constraints[1]", "Params.sketch9_diameter")
pocket7 = body.newObject("PartDesign::Pocket", "Pocket006")
pocket7.Profile = sketch9
pocket7.setExpression("Length", "Params.pocket7_length")
pocket7.Reversed = True

sketch10 = body.newObject("Sketcher::SketchObject", "Sketch009")
sketch10.AttachmentSupport = (doc.getObject("XY_Plane"), [""])
sketch10.MapMode = "FlatFace"
sketch10.AttachmentOffset = App.Placement(V(0, 0, -127), App.Rotation())
add_polygon(sketch10, [(-123, 128), (123, 128), (123, 123), (-123, 123)])
sketch10.addConstraint([
    Sketcher.Constraint("Horizontal", 0),
    Sketcher.Constraint("Vertical", 1),
    Sketcher.Constraint("Horizontal", 2),
    Sketcher.Constraint("Vertical", 3),
    Sketcher.Constraint("DistanceY", 1, 2, 1, 1, 5.0),
    Sketcher.Constraint("DistanceX", 0, 1, 0, 2, 245.8),
    Sketcher.Constraint("DistanceX", -1, 1, 0, 2, 123.0),
    Sketcher.Constraint("DistanceY", -1, 1, 0, 2, 128.35),
])
sketch10.setExpression("Constraints[8]", "Params.sketch10_height")
sketch10.setExpression("Constraints[9]", "Params.sketch10_width")
pocket8 = body.newObject("PartDesign::Pocket", "Pocket007")
pocket8.Profile = sketch10
pocket8.setExpression("Length", "Params.pocket8_length")
pocket8.Reversed = True

sketch11 = body.newObject("Sketcher::SketchObject", "Sketch010")
sketch11.AttachmentSupport = (doc.getObject("XY_Plane"), [""])
sketch11.MapMode = "FlatFace"
sketch11.AttachmentOffset = App.Placement(V(0, 0, -123), App.Rotation())
sketch11.addGeometry([
    Part.Circle(V(-65.1, 48.6, 0), V(0, 0, 1), 2),
    Part.Circle(V(-65.1, 95.7, 0), V(0, 0, 1), 2),
], False)
sketch11.addConstraint([
    Sketcher.Constraint("Equal", 0, 1),
    Sketcher.Constraint("Vertical", 0, 3, 1, 3),
    Sketcher.Constraint("Diameter", 0, 4.0),
    Sketcher.Constraint("DistanceY", 0, 3, 1, 3, 47.0),
    Sketcher.Constraint("DistanceX", 0, 3, -1, 1, 65.1),
    Sketcher.Constraint("DistanceY", -1, 1, 0, 3, 48.65),
])
sketch11.setExpression("Constraints[2]", "Params.sketch11_diameter")
pocket9 = body.newObject("PartDesign::Pocket", "Pocket008")
pocket9.Profile = sketch11
pocket9.setExpression("Length", "Params.pocket9_length")

sketch12 = body.newObject("Sketcher::SketchObject", "Sketch011")
sketch12.AttachmentSupport = (doc.getObject("YZ_Plane"), [""])
sketch12.MapMode = "FlatFace"
sketch12.AttachmentOffset = App.Placement(V(0, 0, -123), App.Rotation())
sketch12.addGeometry([
    Part.Circle(V(48.6, -80.5, 0), V(0, 0, 1), 2),
    Part.Circle(V(95.7, -80.5, 0), V(0, 0, 1), 2),
    Part.Circle(V(95.7, 49.5, 0), V(0, 0, 1), 2),
    Part.Circle(V(48.6, 49.5, 0), V(0, 0, 1), 2),
    Part.Circle(V(48.6, -15.5, 0), V(0, 0, 1), 2),
    Part.Circle(V(95.7, -15.5, 0), V(0, 0, 1), 2),
], False)
sketch12.addConstraint([
    Sketcher.Constraint("Equal", 0, 1),
    Sketcher.Constraint("Equal", 1, 2),
    Sketcher.Constraint("Equal", 2, 3),
    Sketcher.Constraint("Equal", 3, 4),
    Sketcher.Constraint("Equal", 4, 5),
    Sketcher.Constraint("Horizontal", 0, 3, 1, 3),
    Sketcher.Constraint("Horizontal", 2, 3, 3, 3),
    Sketcher.Constraint("Horizontal", 4, 3, 5, 3),
    Sketcher.Constraint("Vertical", 1, 3, 2, 3),
    Sketcher.Constraint("Vertical", 0, 3, 3, 3),
    Sketcher.Constraint("Vertical", 3, 3, 4, 3),
    Sketcher.Constraint("Vertical", 2, 3, 5, 3),
    Sketcher.Constraint("Diameter", 0, 4.0),
    Sketcher.Constraint("DistanceX", 0, 3, 1, 3, 47.0),
    Sketcher.Constraint("DistanceY", 1, 3, 2, 3, 130.0),
    Sketcher.Constraint("DistanceY", 0, 3, 4, 3, 65.0),
    Sketcher.Constraint("DistanceY", 0, 3, -1, 1, 80.5),
    Sketcher.Constraint("DistanceX", -1, 1, 0, 3, 48.65),
])
sketch12.setExpression("Constraints[12]", "Params.sketch12_diameter")
pocket10 = body.newObject("PartDesign::Pocket", "Pocket009")
pocket10.Profile = sketch12
pocket10.setExpression("Length", "Params.pocket10_length")

sketch13 = body.newObject("Sketcher::SketchObject", "Sketch012")
sketch13.AttachmentSupport = (doc.getObject("XZ_Plane"), [""])
sketch13.MapMode = "FlatFace"
sketch13.addGeometry([
    Part.Circle(V(89.6, -54.8, 0), V(0, 0, 1), 2),
    Part.Circle(V(49.6, -54.8, 0), V(0, 0, 1), 2),
    Part.Circle(V(-41.5, -54.8, 0), V(0, 0, 1), 2),
    Part.Circle(V(-81.5, -54.8, 0), V(0, 0, 1), 2),
    Part.Circle(V(-41.5, 25.4, 0), V(0, 0, 1), 2),
    Part.Circle(V(-81.5, 25.4, 0), V(0, 0, 1), 2),
], False)
sketch13.addConstraint([
    Sketcher.Constraint("Equal", 0, 1),
    Sketcher.Constraint("Equal", 1, 2),
    Sketcher.Constraint("Equal", 2, 3),
    Sketcher.Constraint("Equal", 3, 4),
    Sketcher.Constraint("Equal", 4, 5),
    Sketcher.Constraint("Horizontal", 0, 3, 1, 3),
    Sketcher.Constraint("Horizontal", 1, 3, 2, 3),
    Sketcher.Constraint("Horizontal", 2, 3, 3, 3),
    Sketcher.Constraint("Horizontal", 4, 3, 5, 3),
    Sketcher.Constraint("Vertical", 2, 3, 4, 3),
    Sketcher.Constraint("Vertical", 3, 3, 5, 3),
    Sketcher.Constraint("Diameter", 0, 4.0),
    Sketcher.Constraint("DistanceX", 1, 3, 0, 3, 40.0),
    Sketcher.Constraint("DistanceX", 3, 3, 2, 3, 40.0),
    Sketcher.Constraint("DistanceY", 0, 3, -1, 1, 54.8),
    Sketcher.Constraint("DistanceX", 2, 3, -1, 1, 41.5),
    Sketcher.Constraint("DistanceY", -1, 1, 4, 3, 25.4),
    Sketcher.Constraint("DistanceX", -1, 1, 0, 3, 89.6088),
])
sketch13.setExpression("Constraints[11]", "Params.sketch13_diameter")
doc.recompute()
hole = body.newObject("PartDesign::Hole", "Hole")
hole.Profile = sketch13
hole.ThreadType = "None"
hole.setExpression("Diameter", "Params.hole_diameter")
hole.DepthType = "ThroughAll"
hole.HoleCutType = "Counterbore"
hole.setExpression("HoleCutDiameter", "Params.hole_cbore_diameter")
hole.setExpression("HoleCutDepth", "Params.hole_cbore_depth")

doc.recompute()
